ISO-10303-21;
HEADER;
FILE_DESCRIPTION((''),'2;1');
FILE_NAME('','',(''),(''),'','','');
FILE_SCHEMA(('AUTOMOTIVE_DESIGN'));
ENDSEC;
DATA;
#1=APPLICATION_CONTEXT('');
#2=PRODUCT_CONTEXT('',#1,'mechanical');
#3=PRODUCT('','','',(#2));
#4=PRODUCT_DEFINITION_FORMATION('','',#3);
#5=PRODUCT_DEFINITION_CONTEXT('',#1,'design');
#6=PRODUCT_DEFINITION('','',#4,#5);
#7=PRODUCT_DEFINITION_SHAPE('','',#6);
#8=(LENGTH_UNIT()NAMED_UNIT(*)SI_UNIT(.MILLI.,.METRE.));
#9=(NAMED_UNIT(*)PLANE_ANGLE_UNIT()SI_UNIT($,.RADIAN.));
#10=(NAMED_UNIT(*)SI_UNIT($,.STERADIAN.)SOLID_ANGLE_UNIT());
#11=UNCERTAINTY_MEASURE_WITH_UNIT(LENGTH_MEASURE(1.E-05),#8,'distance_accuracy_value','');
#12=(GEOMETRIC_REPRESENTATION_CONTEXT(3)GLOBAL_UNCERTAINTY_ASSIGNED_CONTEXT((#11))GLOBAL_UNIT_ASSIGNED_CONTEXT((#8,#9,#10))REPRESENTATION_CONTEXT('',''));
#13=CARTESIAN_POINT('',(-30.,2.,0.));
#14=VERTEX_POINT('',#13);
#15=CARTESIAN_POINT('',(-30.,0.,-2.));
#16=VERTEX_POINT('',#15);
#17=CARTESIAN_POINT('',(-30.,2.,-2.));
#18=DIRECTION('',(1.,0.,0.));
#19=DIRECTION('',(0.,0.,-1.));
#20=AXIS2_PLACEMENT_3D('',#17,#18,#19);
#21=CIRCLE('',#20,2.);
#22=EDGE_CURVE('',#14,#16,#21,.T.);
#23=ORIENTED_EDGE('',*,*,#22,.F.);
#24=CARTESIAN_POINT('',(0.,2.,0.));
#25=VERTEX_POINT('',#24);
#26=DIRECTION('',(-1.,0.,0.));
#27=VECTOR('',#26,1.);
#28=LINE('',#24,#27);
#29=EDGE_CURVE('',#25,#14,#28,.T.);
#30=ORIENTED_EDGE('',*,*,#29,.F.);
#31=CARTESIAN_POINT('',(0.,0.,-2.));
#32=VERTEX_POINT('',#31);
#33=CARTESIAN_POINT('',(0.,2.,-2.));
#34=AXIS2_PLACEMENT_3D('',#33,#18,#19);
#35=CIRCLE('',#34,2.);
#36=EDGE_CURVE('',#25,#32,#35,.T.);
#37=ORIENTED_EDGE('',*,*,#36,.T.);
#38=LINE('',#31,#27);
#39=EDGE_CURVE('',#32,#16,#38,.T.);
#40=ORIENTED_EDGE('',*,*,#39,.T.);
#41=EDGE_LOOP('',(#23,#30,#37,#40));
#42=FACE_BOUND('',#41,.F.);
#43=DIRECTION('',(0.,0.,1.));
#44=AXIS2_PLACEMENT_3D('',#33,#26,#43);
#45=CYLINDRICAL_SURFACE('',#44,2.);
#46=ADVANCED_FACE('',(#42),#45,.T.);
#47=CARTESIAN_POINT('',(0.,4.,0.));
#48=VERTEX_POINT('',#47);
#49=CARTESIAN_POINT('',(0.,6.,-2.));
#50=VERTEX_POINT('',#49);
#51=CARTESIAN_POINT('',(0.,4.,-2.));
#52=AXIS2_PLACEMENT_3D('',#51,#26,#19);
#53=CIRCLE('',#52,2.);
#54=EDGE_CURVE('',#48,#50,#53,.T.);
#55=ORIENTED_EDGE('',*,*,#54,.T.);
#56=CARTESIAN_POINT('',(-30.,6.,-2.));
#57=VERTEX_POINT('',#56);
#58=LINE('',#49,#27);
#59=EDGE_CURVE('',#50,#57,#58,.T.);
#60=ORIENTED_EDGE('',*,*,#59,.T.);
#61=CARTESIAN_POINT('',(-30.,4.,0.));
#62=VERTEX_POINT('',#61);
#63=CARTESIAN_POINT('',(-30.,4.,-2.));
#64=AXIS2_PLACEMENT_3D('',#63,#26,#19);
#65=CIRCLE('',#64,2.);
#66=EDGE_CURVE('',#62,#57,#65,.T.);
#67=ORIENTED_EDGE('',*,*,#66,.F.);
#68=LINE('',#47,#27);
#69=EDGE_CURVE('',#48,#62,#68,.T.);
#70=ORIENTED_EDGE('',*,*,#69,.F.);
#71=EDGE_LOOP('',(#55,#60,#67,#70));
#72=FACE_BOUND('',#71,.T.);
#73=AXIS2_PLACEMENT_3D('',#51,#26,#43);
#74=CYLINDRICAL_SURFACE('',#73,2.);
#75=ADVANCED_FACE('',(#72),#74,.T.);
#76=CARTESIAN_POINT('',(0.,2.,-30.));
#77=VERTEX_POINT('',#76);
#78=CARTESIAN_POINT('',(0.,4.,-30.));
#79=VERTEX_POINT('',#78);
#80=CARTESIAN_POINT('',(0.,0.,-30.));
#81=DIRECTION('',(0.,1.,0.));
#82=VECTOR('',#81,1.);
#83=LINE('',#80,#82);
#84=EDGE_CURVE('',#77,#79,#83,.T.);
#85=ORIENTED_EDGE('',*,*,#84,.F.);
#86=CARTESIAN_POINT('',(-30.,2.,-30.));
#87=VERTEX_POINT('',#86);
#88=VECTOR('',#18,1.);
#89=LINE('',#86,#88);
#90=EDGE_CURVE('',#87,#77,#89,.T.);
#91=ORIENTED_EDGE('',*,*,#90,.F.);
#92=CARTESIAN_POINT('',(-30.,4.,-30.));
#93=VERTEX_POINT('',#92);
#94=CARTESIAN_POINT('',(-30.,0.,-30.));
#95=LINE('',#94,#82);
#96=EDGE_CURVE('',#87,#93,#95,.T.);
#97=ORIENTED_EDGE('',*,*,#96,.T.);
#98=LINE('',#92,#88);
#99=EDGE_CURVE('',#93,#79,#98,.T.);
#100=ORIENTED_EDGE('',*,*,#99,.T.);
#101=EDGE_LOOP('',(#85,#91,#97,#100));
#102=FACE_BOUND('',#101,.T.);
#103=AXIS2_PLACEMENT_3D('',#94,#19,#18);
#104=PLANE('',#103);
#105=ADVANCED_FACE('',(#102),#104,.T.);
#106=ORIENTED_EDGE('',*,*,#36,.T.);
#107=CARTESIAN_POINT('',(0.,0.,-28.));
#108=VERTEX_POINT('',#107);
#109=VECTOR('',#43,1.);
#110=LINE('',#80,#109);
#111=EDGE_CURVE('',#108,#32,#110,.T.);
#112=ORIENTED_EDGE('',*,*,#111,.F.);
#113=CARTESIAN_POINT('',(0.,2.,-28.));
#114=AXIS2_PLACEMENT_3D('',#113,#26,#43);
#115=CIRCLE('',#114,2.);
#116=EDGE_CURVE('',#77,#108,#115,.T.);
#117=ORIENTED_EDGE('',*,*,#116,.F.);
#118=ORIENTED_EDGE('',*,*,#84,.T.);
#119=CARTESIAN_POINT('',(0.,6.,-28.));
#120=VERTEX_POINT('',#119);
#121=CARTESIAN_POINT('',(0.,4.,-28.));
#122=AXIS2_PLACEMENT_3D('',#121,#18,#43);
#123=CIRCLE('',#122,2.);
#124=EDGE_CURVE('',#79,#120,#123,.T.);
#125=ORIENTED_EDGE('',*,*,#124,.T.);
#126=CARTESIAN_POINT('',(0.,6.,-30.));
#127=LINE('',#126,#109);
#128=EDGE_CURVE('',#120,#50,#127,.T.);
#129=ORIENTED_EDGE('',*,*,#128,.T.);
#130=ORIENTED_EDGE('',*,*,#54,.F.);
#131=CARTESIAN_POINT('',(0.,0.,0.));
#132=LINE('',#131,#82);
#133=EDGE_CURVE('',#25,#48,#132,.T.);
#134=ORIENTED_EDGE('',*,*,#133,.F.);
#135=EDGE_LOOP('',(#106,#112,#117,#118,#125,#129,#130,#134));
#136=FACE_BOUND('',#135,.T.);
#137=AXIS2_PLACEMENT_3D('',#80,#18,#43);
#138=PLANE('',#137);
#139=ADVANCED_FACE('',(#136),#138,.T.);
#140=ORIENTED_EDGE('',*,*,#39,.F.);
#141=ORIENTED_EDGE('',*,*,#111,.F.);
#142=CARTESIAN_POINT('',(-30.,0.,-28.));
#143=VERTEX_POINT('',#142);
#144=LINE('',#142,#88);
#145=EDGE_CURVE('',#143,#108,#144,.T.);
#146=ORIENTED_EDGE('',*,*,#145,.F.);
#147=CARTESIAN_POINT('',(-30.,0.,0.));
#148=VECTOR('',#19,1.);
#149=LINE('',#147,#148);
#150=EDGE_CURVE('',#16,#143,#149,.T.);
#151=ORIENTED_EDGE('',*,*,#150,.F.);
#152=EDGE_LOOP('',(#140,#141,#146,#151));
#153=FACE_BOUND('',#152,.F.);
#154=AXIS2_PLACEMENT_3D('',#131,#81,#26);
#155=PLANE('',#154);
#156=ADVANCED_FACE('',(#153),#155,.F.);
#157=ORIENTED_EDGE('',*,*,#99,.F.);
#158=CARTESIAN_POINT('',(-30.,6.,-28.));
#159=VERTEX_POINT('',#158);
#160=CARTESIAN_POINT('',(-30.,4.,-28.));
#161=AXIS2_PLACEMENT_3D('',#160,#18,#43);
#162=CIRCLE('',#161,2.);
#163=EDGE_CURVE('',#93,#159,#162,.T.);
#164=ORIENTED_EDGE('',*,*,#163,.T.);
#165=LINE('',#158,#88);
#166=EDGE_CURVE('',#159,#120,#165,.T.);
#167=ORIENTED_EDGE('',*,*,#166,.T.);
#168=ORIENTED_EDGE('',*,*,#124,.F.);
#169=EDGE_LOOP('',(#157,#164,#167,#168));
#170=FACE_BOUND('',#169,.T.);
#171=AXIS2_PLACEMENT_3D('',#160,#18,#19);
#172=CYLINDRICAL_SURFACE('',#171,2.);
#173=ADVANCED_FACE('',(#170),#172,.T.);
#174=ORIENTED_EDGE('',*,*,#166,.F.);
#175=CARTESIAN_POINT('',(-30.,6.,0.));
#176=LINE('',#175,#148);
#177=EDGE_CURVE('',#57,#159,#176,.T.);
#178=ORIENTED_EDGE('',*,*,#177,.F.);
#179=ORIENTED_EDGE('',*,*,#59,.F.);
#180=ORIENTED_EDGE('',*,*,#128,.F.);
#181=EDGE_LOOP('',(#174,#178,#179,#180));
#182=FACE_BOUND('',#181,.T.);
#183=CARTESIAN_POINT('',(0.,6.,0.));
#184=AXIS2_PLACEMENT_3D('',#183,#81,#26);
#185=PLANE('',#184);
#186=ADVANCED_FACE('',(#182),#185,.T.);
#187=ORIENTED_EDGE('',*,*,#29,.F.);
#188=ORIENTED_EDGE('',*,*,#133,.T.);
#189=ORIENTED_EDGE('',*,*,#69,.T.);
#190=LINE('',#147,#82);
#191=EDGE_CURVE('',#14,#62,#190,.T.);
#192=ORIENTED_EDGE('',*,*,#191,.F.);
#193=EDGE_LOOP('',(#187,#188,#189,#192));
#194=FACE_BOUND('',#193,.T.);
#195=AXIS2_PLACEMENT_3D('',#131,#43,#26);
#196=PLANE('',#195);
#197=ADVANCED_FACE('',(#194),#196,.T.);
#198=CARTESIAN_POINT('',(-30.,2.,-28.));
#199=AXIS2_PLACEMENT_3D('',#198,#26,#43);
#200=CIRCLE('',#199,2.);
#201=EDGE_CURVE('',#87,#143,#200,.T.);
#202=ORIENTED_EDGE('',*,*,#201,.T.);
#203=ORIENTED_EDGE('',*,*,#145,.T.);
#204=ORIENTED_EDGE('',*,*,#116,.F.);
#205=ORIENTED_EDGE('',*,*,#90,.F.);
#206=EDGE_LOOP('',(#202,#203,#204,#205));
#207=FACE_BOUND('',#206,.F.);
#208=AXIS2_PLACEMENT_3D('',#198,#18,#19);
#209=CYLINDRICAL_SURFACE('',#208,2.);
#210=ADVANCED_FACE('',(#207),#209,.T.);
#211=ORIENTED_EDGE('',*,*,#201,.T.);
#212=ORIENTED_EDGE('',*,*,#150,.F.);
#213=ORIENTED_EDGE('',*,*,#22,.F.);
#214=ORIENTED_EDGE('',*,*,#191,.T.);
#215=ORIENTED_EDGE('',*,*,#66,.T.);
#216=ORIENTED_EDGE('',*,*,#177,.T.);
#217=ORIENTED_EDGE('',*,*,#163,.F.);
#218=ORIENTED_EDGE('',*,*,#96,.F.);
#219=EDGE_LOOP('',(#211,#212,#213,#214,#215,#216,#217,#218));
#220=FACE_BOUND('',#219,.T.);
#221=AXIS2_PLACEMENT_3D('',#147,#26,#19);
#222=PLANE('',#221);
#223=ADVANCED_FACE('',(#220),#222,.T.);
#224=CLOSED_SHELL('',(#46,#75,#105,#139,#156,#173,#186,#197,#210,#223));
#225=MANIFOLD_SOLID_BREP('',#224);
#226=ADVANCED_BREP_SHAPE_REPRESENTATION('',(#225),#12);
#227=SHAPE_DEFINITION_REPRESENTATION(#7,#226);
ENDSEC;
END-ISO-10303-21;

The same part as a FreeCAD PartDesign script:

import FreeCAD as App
import Part
import Sketcher
Q = App.Units.Quantity


def edges_at(feature, points):
    """Names of the edges that pass closest to the given points."""
    edges = feature.Shape.Edges
    near = lambda p: min(range(len(edges)), key=lambda i: edges[i].distToShape(Part.Vertex(*p))[0])
    return sorted({f"Edge{near(p) + 1}" for p in points})

doc = App.newDocument("Part")
body = doc.addObject("PartDesign::Body", "Body")

# Sketch on XZ plane
sketch1 = doc.addObject("Sketcher::SketchObject", "Sketch")
body.addObject(sketch1)
sketch1.AttachmentSupport = (doc.XZ_Plane, [""])
sketch1.MapMode = "FlatFace"
sketch1.addGeometry([
    Part.LineSegment(App.Vector(-30, 0, 0), App.Vector(0, 0, 0)),
    Part.LineSegment(App.Vector(0, 0, 0), App.Vector(0, -30, 0)),
    Part.LineSegment(App.Vector(0, -30, 0), App.Vector(-30, -30, 0)),
    Part.LineSegment(App.Vector(-30, -30, 0), App.Vector(-30, 0, 0)),
], False)
sketch1.addConstraint([
    Sketcher.Constraint("Coincident", 0, 2, 1, 1),
    Sketcher.Constraint("Coincident", 1, 2, 2, 1),
    Sketcher.Constraint("Coincident", 2, 2, 3, 1),
    Sketcher.Constraint("Coincident", 3, 2, 0, 1),
    Sketcher.Constraint("Horizontal", 0),
    Sketcher.Constraint("Vertical", 1),
    Sketcher.Constraint("Horizontal", 2),
    Sketcher.Constraint("Vertical", 3),
    Sketcher.Constraint("Coincident", 0, 2, -1, 1),
    Sketcher.Constraint("Equal", 2, 1),
    Sketcher.Constraint("DistanceX", 0, 1, 0, 2, Q("30 mm")),
])
pad1 = doc.addObject("PartDesign::Pad", "Pad")
body.addObject(pad1)
pad1.Profile = sketch1
pad1.Length = 6
pad1.Reversed = True
doc.recompute()

fillet = doc.addObject("PartDesign::Fillet", "Fillet")
body.addObject(fillet)
fillet.Base = (pad1, edges_at(pad1, [
    (-15, 6, 0),
    (-15, 0, 0),
    (-15, 6, -30),
    (-15, 0, -30),
]))
fillet.Radius = 2

doc.recompute()
